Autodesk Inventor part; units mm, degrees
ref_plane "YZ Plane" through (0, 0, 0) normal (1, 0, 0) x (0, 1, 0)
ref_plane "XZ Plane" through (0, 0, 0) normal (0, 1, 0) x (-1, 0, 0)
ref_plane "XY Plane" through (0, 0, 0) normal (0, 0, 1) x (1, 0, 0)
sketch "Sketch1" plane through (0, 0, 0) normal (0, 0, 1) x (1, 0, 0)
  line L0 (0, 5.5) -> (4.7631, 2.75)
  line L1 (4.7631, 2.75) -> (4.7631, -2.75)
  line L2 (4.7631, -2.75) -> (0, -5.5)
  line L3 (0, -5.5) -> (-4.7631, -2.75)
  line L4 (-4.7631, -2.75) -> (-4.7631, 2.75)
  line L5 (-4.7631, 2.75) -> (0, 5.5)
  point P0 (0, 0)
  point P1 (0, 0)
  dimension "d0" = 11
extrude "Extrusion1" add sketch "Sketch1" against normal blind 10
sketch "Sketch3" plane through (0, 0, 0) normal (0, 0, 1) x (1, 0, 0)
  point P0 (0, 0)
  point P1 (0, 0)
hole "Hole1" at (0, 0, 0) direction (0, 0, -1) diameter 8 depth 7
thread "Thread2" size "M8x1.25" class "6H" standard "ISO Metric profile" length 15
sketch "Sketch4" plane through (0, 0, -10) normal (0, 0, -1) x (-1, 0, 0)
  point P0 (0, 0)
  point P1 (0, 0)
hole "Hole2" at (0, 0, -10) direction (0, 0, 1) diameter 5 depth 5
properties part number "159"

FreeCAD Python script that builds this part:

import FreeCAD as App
import Part
import Sketcher
from FreeCAD import Vector
Q = App.Units.Quantity

doc = App.newDocument("Part")
params = doc.addObject("Spreadsheet::Sheet", "Params")
for row, (alias, value) in enumerate([
    ("sketch1_height", "5.5 mm"),
    ("pad1_length", "10 mm"),
    ("sketch2_diameter", "8 mm"),
    ("hole_diameter", "8 mm"),
    ("hole_depth", "7 mm"),
    ("sketch3_diameter", "5 mm"),
    ("hole2_diameter", "5 mm"),
    ("hole2_depth", "5 mm"),
], start=1):
    params.set(f"A{row}", alias)
    params.set(f"B{row}", "=" + value)
    params.setAlias(f"B{row}", alias)

body = doc.addObject("PartDesign::Body", "Body")

# Sketch on XY plane
sketch1 = body.newObject("Sketcher::SketchObject", "Sketch")
sketch1.AttachmentSupport = (doc.getObject("XY_Plane"), [""])
sketch1.MapMode = "FlatFace"
sketch1.addGeometry(Part.LineSegment(Vector(4.7631, 2.75, 0), Vector(0, 5.5, 0)), False)
sketch1.addGeometry(Part.LineSegment(Vector(0, 5.5, 0), Vector(-4.7631, 2.75, 0)), False)
sketch1.addGeometry(Part.LineSegment(Vector(-4.7631, 2.75, 0), Vector(-4.7631, -2.75, 0)), False)
sketch1.addGeometry(Part.LineSegment(Vector(-4.7631, -2.75, 0), Vector(0, -5.5, 0)), False)
sketch1.addGeometry(Part.LineSegment(Vector(0, -5.5, 0), Vector(4.7631, -2.75, 0)), False)
sketch1.addGeometry(Part.LineSegment(Vector(4.7631, -2.75, 0), Vector(4.7631, 2.75, 0)), False)
sketch1.addConstraint(Sketcher.Constraint("Coincident", 0, 2, 1, 1))
sketch1.addConstraint(Sketcher.Constraint("Coincident", 1, 2, 2, 1))
sketch1.addConstraint(Sketcher.Constraint("Coincident", 2, 2, 3, 1))
sketch1.addConstraint(Sketcher.Constraint("Coincident", 3, 2, 4, 1))
sketch1.addConstraint(Sketcher.Constraint("Coincident", 4, 2, 5, 1))
sketch1.addConstraint(Sketcher.Constraint("Coincident", 5, 2, 0, 1))
sketch1.addConstraint(Sketcher.Constraint("Vertical", 2))
sketch1.addConstraint(Sketcher.Constraint("Vertical", 5))
sketch1.addConstraint(Sketcher.Constraint("Symmetric", 0, 2, 3, 2, -1, 1))
sketch1.addConstraint(Sketcher.Constraint("Symmetric", 1, 2, 4, 2, -1, 1))
sketch1.addConstraint(Sketcher.Constraint("PointOnObject", 0, 2, -2))
sketch1.addConstraint(Sketcher.Constraint("Parallel", 0, 3))
sketch1.addConstraint(Sketcher.Constraint("Horizontal", 2, 2, 4, 2))
sketch1.addConstraint(Sketcher.Constraint("DistanceY", 3, 2, 0, 2, 11.0))
sketch1.addConstraint(Sketcher.Constraint("Angle", 0, Q("149.9998 deg")))
sketch1.addConstraint(Sketcher.Constraint("DistanceY", 2, 2, 2, 1, 5.5))
sketch1.setExpression("Constraints[15]", "Params.sketch1_height")
pad1 = body.newObject("PartDesign::Pad", "Pad")
pad1.Profile = sketch1
pad1.setExpression("Length", "Params.pad1_length")
pad1.Reversed = True

# Sketch on XY plane
sketch2 = body.newObject("Sketcher::SketchObject", "Sketch001")
sketch2.AttachmentSupport = (doc.getObject("XY_Plane"), [""])
sketch2.MapMode = "FlatFace"
sketch2.addGeometry(Part.Circle(Vector(0, 0, 0), Vector(0, 0, 1), 4), False)
sketch2.addConstraint(Sketcher.Constraint("Coincident", 0, 3, -1, 1))
sketch2.addConstraint(Sketcher.Constraint("Diameter", 0, 8.0))
sketch2.setExpression("Constraints[1]", "Params.sketch2_diameter")
doc.recompute()
hole = body.newObject("PartDesign::Hole", "Hole")
hole.Profile = sketch2
hole.ThreadType = "None"
hole.setExpression("Diameter", "Params.hole_diameter")
hole.DepthType = "Dimension"
hole.setExpression("Depth", "Params.hole_depth")
hole.DrillPoint = "Flat"

# Sketch on XY plane
sketch3 = body.newObject("Sketcher::SketchObject", "Sketch002")
sketch3.AttachmentSupport = (doc.getObject("XY_Plane"), [""])
sketch3.MapMode = "FlatFace"
sketch3.AttachmentOffset = App.Placement(Vector(0, 0, -10), App.Rotation())
sketch3.addGeometry(Part.Circle(Vector(0, 0, 0), Vector(0, 0, 1), 2.5), False)
sketch3.addConstraint(Sketcher.Constraint("Coincident", 0, 3, -1, 1))
sketch3.addConstraint(Sketcher.Constraint("Diameter", 0, 5.0))
sketch3.setExpression("Constraints[1]", "Params.sketch3_diameter")
doc.recompute()
hole2 = body.newObject("PartDesign::Hole", "Hole001")
hole2.Profile = sketch3
hole2.ThreadType = "None"
hole2.setExpression("Diameter", "Params.hole2_diameter")
hole2.DepthType = "Dimension"
hole2.setExpression("Depth", "Params.hole2_depth")
hole2.DrillPoint = "Flat"
hole2.Reversed = True

doc.recompute()
